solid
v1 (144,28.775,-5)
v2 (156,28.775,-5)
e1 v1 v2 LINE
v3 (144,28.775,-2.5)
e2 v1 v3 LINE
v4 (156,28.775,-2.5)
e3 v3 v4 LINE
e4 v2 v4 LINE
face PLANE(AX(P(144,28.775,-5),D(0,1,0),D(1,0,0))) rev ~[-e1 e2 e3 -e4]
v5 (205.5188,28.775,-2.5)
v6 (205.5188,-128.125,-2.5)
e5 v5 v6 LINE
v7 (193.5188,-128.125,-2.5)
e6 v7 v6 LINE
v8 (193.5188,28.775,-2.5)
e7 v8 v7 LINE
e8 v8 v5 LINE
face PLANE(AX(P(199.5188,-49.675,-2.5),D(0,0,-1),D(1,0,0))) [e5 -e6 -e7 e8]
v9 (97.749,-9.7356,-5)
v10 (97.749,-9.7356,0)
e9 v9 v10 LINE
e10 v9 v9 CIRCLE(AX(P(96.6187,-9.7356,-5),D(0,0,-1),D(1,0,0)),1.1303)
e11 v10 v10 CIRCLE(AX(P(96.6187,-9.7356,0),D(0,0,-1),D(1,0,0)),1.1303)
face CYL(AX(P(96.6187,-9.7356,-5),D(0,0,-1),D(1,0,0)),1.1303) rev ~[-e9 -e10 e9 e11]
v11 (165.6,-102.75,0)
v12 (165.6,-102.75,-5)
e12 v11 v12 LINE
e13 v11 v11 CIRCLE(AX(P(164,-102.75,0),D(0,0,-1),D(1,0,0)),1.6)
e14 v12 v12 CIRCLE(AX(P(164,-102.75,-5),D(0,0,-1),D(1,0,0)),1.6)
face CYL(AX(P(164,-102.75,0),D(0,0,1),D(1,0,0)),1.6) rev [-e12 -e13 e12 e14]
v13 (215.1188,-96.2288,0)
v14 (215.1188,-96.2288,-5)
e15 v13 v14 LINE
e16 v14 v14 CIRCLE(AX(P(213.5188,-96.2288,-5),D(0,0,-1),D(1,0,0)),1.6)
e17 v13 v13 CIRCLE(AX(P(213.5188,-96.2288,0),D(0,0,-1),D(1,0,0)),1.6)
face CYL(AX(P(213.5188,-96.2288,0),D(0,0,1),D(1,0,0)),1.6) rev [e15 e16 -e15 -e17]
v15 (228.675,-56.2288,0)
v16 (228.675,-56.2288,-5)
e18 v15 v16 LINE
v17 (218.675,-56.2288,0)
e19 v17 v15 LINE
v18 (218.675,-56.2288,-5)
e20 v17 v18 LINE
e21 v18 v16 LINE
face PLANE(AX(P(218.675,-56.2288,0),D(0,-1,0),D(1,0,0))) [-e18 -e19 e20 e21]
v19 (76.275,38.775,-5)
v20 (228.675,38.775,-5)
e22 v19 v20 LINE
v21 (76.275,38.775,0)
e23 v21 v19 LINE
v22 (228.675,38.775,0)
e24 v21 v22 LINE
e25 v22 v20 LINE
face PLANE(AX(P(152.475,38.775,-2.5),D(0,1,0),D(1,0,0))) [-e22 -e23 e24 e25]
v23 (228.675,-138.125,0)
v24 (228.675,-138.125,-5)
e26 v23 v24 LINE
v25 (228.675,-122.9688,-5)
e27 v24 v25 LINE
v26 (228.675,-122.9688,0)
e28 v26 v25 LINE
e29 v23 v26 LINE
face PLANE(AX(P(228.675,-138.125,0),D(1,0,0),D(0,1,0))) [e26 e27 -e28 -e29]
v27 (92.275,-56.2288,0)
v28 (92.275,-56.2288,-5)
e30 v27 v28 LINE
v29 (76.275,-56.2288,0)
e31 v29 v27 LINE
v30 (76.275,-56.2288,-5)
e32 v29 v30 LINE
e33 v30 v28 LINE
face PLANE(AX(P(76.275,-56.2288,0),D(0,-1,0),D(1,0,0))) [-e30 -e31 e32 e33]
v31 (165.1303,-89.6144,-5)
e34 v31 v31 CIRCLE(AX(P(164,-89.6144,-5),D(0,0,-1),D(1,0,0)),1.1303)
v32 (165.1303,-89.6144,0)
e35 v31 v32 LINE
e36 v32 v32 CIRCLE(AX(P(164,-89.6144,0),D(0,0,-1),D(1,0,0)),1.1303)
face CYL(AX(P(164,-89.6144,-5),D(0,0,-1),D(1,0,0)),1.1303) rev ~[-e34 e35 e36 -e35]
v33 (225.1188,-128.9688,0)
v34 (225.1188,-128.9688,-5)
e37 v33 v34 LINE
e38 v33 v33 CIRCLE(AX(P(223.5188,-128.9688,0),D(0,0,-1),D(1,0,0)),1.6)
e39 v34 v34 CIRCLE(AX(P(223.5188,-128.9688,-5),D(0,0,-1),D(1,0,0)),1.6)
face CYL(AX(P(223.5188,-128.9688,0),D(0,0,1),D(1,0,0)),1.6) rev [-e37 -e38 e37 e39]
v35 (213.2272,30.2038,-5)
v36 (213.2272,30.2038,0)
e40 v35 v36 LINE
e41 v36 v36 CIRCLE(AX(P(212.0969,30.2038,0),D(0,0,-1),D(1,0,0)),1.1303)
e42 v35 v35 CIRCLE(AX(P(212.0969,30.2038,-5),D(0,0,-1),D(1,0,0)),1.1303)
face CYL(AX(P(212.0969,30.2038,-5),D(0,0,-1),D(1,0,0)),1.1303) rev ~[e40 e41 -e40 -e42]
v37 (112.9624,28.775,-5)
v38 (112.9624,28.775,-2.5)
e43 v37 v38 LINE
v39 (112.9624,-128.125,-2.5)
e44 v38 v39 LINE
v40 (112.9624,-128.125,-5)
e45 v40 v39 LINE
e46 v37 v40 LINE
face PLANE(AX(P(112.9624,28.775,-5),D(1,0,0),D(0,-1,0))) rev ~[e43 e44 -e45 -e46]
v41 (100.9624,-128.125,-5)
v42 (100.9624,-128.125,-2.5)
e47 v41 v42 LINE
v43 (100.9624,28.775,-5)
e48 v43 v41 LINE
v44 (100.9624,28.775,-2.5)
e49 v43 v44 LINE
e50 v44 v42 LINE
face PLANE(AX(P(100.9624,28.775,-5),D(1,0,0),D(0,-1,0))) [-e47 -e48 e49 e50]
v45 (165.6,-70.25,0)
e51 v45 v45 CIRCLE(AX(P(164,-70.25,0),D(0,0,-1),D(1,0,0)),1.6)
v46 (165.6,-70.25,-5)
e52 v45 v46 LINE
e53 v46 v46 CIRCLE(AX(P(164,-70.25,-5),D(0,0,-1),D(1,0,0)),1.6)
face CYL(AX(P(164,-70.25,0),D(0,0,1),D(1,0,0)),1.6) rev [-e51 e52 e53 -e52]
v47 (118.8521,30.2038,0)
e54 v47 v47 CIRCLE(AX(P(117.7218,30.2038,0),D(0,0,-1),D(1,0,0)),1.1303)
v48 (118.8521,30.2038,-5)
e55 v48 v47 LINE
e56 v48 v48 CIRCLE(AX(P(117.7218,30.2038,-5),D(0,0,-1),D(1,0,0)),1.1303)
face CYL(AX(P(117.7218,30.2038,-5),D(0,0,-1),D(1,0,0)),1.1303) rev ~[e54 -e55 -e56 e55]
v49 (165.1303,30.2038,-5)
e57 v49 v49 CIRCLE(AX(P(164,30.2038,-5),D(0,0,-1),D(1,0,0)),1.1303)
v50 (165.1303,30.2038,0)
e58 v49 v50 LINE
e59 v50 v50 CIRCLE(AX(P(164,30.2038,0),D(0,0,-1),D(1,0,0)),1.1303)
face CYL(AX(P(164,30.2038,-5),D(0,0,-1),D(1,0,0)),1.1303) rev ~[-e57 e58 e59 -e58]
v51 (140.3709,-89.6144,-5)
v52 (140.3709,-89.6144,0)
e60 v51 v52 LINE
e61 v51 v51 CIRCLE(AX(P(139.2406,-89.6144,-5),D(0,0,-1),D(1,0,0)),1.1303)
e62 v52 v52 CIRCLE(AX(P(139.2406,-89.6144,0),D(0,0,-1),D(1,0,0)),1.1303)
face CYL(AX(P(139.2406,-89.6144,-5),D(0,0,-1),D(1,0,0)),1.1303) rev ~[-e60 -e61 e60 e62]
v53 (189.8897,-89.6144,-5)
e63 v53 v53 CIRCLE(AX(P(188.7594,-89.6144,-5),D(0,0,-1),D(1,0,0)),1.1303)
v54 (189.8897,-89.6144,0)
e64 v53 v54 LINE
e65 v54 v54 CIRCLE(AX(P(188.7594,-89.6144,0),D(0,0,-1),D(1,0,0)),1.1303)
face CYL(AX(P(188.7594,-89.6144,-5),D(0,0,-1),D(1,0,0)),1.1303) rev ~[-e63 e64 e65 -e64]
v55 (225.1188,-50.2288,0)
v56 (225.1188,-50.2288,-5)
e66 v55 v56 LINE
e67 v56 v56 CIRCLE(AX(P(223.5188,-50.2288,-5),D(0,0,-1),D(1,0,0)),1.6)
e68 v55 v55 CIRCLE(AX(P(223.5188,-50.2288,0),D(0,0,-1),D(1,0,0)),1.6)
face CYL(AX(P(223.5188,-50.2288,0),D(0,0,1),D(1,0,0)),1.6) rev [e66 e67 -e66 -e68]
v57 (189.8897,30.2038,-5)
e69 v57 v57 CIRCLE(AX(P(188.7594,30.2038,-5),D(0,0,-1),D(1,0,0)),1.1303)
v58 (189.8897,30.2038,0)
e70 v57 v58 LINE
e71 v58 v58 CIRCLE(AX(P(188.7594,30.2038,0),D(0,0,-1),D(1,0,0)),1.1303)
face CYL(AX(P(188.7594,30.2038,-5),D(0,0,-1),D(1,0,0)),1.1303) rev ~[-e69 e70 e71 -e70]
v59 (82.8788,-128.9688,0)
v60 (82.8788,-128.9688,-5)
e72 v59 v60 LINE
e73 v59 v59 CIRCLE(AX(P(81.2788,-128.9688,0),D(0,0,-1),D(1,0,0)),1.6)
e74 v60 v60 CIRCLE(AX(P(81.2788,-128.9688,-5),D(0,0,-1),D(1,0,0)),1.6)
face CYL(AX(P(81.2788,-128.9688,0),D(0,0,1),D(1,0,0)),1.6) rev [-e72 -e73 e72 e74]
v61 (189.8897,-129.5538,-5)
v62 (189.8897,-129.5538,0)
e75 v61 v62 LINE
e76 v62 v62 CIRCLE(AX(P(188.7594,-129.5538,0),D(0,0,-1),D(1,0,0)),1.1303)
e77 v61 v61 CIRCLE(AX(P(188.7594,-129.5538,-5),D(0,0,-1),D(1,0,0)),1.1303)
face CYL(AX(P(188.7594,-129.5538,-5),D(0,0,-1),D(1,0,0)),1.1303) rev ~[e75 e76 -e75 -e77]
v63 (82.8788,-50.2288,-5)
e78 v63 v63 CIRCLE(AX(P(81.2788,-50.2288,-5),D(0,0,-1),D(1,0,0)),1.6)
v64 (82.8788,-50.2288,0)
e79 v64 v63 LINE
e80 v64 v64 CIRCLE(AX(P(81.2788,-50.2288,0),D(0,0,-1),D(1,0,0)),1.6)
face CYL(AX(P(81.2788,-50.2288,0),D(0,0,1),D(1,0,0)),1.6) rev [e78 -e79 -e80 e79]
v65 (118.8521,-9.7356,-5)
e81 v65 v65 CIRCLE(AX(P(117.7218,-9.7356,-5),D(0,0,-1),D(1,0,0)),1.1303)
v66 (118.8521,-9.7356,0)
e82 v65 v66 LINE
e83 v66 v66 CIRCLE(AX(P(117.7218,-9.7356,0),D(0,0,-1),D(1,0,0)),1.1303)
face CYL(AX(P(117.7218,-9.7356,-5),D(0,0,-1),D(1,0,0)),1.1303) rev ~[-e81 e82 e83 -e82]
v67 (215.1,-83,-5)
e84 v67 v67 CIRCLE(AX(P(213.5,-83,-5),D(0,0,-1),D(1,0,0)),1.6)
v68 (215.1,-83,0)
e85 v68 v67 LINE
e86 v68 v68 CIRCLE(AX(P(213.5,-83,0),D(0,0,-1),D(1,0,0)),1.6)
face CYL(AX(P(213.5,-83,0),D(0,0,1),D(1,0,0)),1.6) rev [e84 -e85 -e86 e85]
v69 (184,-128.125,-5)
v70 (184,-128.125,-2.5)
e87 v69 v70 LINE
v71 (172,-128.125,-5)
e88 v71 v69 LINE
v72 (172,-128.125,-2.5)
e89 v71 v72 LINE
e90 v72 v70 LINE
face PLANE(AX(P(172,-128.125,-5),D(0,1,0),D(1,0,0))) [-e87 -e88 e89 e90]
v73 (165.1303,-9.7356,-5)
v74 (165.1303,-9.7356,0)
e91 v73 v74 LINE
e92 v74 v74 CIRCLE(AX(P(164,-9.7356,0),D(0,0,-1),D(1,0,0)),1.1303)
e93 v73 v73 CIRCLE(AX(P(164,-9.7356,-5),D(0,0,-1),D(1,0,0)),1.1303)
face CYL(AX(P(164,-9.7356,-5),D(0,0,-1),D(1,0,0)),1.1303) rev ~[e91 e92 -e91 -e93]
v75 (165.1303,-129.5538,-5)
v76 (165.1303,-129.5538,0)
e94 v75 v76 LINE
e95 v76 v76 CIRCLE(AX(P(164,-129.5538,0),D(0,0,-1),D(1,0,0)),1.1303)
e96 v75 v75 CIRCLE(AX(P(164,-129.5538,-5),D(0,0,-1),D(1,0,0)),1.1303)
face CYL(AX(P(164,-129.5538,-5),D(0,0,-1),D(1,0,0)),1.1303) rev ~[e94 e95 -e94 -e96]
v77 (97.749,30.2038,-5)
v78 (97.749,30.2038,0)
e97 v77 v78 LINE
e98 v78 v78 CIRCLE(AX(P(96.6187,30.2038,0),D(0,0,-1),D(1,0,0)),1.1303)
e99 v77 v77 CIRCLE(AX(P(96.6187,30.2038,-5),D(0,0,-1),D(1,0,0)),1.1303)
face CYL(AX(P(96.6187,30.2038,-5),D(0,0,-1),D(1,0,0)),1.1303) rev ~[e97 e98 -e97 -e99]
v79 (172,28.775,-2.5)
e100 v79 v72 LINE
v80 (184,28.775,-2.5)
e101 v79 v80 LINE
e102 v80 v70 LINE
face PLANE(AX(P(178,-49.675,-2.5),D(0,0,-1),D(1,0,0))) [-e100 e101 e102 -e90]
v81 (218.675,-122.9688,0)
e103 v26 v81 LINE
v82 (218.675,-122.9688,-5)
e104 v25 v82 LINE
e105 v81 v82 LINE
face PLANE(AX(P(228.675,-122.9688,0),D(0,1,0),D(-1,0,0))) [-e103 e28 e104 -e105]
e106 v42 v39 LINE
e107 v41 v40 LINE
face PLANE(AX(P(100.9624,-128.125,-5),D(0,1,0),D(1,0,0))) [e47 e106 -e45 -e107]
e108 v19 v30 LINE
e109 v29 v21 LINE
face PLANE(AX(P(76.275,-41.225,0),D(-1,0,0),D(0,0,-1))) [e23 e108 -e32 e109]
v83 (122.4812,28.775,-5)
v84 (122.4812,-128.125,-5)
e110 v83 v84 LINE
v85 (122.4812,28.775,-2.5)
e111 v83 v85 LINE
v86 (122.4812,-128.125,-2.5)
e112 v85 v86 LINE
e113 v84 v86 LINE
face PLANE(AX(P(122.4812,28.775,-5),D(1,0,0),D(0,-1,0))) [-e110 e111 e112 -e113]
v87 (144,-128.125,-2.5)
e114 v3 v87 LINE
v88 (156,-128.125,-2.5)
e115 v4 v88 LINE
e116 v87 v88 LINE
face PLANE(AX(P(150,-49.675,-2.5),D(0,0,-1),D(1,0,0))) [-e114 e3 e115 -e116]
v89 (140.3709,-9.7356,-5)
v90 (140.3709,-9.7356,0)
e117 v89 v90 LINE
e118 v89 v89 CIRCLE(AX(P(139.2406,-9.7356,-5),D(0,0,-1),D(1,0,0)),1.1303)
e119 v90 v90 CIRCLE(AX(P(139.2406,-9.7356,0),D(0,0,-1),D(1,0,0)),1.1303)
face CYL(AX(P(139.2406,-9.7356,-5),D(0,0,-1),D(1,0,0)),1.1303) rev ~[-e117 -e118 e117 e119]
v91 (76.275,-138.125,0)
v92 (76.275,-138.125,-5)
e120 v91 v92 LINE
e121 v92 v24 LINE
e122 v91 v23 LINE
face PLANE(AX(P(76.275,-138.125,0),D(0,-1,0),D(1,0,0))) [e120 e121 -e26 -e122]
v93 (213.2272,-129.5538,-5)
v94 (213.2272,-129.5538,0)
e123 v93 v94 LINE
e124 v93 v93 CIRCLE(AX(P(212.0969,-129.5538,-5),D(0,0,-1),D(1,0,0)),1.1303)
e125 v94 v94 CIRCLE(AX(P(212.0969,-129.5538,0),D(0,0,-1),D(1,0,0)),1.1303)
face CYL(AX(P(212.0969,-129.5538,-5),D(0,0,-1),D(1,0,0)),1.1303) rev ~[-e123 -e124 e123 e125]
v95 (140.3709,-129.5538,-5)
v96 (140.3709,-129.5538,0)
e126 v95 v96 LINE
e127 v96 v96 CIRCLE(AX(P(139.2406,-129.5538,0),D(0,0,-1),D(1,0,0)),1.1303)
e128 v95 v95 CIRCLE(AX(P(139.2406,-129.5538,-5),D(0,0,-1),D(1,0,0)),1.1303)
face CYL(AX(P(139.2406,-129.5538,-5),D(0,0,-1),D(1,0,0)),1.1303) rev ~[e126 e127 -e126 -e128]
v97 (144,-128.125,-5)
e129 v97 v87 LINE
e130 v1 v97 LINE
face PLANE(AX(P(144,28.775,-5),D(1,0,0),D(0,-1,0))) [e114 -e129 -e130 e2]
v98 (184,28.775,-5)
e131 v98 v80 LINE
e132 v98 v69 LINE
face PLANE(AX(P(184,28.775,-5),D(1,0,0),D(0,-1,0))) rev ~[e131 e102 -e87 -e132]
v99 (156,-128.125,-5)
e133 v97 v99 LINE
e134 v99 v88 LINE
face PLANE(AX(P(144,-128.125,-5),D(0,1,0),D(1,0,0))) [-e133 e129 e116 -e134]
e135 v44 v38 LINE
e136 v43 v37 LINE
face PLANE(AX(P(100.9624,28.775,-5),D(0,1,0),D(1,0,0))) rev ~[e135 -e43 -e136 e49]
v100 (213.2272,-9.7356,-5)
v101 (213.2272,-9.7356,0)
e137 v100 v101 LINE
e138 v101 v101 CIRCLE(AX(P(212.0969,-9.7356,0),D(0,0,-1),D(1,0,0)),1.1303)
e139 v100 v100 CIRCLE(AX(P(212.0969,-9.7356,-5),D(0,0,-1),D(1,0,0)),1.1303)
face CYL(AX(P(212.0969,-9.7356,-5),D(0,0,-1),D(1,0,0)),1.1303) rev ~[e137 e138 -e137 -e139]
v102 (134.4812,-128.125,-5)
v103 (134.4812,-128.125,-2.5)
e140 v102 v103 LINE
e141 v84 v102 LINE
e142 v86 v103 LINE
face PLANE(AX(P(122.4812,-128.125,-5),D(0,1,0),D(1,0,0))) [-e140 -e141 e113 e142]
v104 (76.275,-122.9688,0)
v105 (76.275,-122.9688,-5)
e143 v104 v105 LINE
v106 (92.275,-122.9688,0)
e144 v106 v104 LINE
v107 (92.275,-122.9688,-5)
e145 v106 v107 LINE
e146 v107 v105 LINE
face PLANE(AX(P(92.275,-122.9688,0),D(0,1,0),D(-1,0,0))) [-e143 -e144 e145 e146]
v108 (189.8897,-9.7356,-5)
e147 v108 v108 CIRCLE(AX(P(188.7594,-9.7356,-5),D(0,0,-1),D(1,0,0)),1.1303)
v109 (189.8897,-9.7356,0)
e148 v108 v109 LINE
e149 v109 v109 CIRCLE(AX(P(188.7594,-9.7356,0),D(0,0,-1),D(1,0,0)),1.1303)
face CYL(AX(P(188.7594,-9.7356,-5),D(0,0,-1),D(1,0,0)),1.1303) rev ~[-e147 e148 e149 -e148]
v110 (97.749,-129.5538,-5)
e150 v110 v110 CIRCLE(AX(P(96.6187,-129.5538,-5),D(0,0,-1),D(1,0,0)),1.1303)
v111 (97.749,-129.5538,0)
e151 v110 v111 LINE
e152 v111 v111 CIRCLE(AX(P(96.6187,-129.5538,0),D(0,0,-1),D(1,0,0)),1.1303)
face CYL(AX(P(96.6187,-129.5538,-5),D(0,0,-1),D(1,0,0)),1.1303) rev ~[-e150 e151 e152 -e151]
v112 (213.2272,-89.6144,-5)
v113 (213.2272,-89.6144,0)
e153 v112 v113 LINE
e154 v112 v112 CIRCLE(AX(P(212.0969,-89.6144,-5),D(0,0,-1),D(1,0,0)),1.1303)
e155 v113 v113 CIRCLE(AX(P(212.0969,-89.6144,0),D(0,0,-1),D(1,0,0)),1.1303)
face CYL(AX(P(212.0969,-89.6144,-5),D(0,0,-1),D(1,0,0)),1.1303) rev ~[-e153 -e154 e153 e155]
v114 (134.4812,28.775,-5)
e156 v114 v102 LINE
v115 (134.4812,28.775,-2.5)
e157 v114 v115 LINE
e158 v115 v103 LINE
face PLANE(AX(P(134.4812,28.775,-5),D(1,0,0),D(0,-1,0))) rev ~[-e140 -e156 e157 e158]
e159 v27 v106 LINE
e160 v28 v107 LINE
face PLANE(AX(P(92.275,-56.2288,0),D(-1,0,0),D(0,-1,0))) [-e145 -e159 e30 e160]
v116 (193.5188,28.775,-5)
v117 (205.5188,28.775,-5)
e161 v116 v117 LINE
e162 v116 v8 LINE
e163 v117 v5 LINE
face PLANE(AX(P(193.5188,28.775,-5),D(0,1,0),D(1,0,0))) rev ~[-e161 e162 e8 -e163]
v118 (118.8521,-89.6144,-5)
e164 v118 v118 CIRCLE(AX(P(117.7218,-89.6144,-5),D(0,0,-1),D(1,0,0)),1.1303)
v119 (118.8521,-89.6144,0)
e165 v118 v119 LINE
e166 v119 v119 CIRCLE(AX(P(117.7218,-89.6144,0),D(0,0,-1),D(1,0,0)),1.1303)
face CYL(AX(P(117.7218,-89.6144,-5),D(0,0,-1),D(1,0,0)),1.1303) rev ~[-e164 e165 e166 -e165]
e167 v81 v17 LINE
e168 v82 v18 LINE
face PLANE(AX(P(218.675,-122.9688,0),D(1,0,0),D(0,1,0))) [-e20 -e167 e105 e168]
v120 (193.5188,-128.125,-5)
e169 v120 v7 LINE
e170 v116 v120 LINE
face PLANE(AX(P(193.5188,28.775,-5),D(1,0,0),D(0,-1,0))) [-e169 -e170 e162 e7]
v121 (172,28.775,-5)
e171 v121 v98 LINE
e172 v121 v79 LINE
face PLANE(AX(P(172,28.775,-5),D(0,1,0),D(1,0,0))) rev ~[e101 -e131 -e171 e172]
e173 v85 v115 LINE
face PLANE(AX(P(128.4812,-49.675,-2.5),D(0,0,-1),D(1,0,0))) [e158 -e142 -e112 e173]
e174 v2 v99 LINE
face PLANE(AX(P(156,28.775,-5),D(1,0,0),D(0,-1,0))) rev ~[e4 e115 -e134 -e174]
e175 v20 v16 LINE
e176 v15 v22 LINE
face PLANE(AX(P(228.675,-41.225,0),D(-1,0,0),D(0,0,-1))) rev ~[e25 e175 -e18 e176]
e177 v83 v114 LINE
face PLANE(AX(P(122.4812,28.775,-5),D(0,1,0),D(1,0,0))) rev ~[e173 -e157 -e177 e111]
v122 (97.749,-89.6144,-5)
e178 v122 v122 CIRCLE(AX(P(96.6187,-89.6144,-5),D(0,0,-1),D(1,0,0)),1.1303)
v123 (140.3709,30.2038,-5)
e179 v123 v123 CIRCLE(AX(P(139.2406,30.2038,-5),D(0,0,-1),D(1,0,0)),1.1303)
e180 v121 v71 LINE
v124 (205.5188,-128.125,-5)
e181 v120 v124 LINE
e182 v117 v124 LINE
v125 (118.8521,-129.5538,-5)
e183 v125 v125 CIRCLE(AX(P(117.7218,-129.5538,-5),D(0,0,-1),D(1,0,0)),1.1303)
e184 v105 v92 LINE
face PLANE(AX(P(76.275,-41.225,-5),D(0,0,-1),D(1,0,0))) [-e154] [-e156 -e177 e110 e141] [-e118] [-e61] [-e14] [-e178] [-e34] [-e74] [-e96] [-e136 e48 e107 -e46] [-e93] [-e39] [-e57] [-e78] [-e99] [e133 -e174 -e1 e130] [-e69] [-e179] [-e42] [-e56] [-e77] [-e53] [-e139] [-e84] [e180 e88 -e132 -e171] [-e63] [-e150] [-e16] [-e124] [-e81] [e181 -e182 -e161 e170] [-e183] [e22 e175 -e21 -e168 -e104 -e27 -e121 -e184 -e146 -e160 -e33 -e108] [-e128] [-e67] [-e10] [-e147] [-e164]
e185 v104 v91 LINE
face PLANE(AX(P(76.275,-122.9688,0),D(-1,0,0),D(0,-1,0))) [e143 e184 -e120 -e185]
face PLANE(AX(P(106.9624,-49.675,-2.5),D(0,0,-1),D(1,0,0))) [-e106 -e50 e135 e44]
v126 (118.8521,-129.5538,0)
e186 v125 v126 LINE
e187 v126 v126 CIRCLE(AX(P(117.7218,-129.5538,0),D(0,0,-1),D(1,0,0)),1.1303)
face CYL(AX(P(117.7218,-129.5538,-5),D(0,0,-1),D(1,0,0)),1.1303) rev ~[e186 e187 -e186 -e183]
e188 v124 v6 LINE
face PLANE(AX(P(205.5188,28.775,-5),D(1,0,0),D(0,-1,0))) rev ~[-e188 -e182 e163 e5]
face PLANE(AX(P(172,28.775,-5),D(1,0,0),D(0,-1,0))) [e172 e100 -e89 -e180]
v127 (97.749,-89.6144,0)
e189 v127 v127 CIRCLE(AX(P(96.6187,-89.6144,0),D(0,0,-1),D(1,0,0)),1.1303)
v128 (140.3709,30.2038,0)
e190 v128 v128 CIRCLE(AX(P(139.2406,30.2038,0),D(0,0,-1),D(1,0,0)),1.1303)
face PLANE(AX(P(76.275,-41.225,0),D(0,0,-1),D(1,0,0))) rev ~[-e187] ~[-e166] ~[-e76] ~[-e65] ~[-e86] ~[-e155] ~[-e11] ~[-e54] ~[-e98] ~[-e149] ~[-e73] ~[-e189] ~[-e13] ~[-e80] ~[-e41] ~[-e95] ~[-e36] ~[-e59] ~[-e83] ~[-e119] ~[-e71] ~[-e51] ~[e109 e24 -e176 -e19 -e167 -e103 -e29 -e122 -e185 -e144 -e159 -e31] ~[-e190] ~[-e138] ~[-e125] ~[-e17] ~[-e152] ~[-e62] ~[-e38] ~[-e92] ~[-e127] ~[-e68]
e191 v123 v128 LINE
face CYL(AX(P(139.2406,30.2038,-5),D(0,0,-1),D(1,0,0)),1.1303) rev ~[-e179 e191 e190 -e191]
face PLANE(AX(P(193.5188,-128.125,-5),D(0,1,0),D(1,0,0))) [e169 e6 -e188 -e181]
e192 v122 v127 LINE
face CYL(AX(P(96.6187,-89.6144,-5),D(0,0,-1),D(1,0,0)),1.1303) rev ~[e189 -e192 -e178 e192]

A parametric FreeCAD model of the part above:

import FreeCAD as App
import Part
import Sketcher
Q = App.Units.Quantity

doc = App.newDocument("Part")
body = doc.addObject("PartDesign::Body", "Body")

# Sketch on XY plane
sketch1 = doc.addObject("Sketcher::SketchObject", "Sketch")
body.addObject(sketch1)
sketch1.AttachmentSupport = (doc.XY_Plane, [""])
sketch1.MapMode = "FlatFace"
sketch1.addGeometry(Part.LineSegment(App.Vector(228.675, -138.125, 0), App.Vector(76.275, -138.125, 0)), False)
sketch1.addGeometry(Part.LineSegment(App.Vector(76.275, -138.125, 0), App.Vector(76.275, -122.9688, 0)), False)
sketch1.addGeometry(Part.LineSegment(App.Vector(76.275, -122.9688, 0), App.Vector(92.275, -122.9688, 0)), False)
sketch1.addGeometry(Part.LineSegment(App.Vector(92.275, -122.9688, 0), App.Vector(92.275, -56.2288, 0)), False)
sketch1.addGeometry(Part.LineSegment(App.Vector(92.275, -56.2288, 0), App.Vector(76.275, -56.2288, 0)), False)
sketch1.addGeometry(Part.LineSegment(App.Vector(76.275, -56.2288, 0), App.Vector(76.275, -41.225, 0)), False)
sketch1.addGeometry(Part.LineSegment(App.Vector(76.275, -41.225, 0), App.Vector(228.675, -41.225, 0)), False)
sketch1.addGeometry(Part.LineSegment(App.Vector(228.675, -41.225, 0), App.Vector(228.675, -56.2288, 0)), False)
sketch1.addGeometry(Part.LineSegment(App.Vector(228.675, -56.2288, 0), App.Vector(218.675, -56.2288, 0)), False)
sketch1.addGeometry(Part.LineSegment(App.Vector(218.675, -56.2288, 0), App.Vector(218.675, -122.9688, 0)), False)
sketch1.addGeometry(Part.LineSegment(App.Vector(218.675, -122.9688, 0), App.Vector(228.675, -122.9688, 0)), False)
sketch1.addGeometry(Part.LineSegment(App.Vector(228.675, -122.9688, 0), App.Vector(228.675, -138.125, 0)), False)
sketch1.addGeometry(Part.Circle(App.Vector(223.5188, -50.2288, 0), App.Vector(0, 0, 1), 1.6), False)
sketch1.addGeometry(Part.Circle(App.Vector(213.5, -83, 0), App.Vector(0, 0, 1), 1.6), False)
sketch1.addGeometry(Part.Circle(App.Vector(164, -70.25, 0), App.Vector(0, 0, 1), 1.6), False)
sketch1.addGeometry(Part.Circle(App.Vector(81.2788, -50.2288, 0), App.Vector(0, 0, 1), 1.6), False)
sketch1.addGeometry(Part.Circle(App.Vector(213.5188, -96.2288, 0), App.Vector(0, 0, 1), 1.6), False)
sketch1.addGeometry(Part.Circle(App.Vector(164, -102.75, 0), App.Vector(0, 0, 1), 1.6), False)
sketch1.addGeometry(Part.Circle(App.Vector(223.5188, -128.9688, 0), App.Vector(0, 0, 1), 1.6), False)
sketch1.addGeometry(Part.Circle(App.Vector(81.2788, -128.9688, 0), App.Vector(0, 0, 1), 1.6), False)
sketch1.addConstraint(Sketcher.Constraint("Coincident", 0, 2, 1, 1))
sketch1.addConstraint(Sketcher.Constraint("Coincident", 1, 2, 2, 1))
sketch1.addConstraint(Sketcher.Constraint("Coincident", 2, 2, 3, 1))
sketch1.addConstraint(Sketcher.Constraint("Coincident", 3, 2, 4, 1))
sketch1.addConstraint(Sketcher.Constraint("Coincident", 4, 2, 5, 1))
sketch1.addConstraint(Sketcher.Constraint("Coincident", 5, 2, 6, 1))
sketch1.addConstraint(Sketcher.Constraint("Coincident", 6, 2, 7, 1))
sketch1.addConstraint(Sketcher.Constraint("Coincident", 7, 2, 8, 1))
sketch1.addConstraint(Sketcher.Constraint("Coincident", 8, 2, 9, 1))
sketch1.addConstraint(Sketcher.Constraint("Coincident", 9, 2, 10, 1))
sketch1.addConstraint(Sketcher.Constraint("Coincident", 10, 2, 11, 1))
sketch1.addConstraint(Sketcher.Constraint("Coincident", 11, 2, 0, 1))
sketch1.addConstraint(Sketcher.Constraint("Horizontal", 0))
sketch1.addConstraint(Sketcher.Constraint("Vertical", 1))
sketch1.addConstraint(Sketcher.Constraint("Horizontal", 2))
sketch1.addConstraint(Sketcher.Constraint("Vertical", 3))
sketch1.addConstraint(Sketcher.Constraint("Horizontal", 4))
sketch1.addConstraint(Sketcher.Constraint("Vertical", 5))
sketch1.addConstraint(Sketcher.Constraint("Horizontal", 6))
sketch1.addConstraint(Sketcher.Constraint("Vertical", 7))
sketch1.addConstraint(Sketcher.Constraint("Horizontal", 8))
sketch1.addConstraint(Sketcher.Constraint("Vertical", 9))
sketch1.addConstraint(Sketcher.Constraint("Horizontal", 10))
sketch1.addConstraint(Sketcher.Constraint("Vertical", 11))
sketch1.addConstraint(Sketcher.Constraint("Equal", 12, 13))
sketch1.addConstraint(Sketcher.Constraint("Equal", 13, 14))
sketch1.addConstraint(Sketcher.Constraint("Equal", 14, 15))
sketch1.addConstraint(Sketcher.Constraint("Equal", 15, 16))
sketch1.addConstraint(Sketcher.Constraint("Equal", 16, 17))
sketch1.addConstraint(Sketcher.Constraint("Equal", 17, 18))
sketch1.addConstraint(Sketcher.Constraint("Equal", 18, 19))
sketch1.addConstraint(Sketcher.Constraint("Horizontal", 12, 3, 15, 3))
sketch1.addConstraint(Sketcher.Constraint("Horizontal", 18, 3, 19, 3))
sketch1.addConstraint(Sketcher.Constraint("Horizontal", 4, 2, 7, 2))
sketch1.addConstraint(Sketcher.Constraint("Horizontal", 2, 2, 9, 2))
sketch1.addConstraint(Sketcher.Constraint("Vertical", 14, 3, 17, 3))
sketch1.addConstraint(Sketcher.Constraint("Vertical", 12, 3, 18, 3))
sketch1.addConstraint(Sketcher.Constraint("Vertical", 15, 3, 19, 3))
sketch1.addConstraint(Sketcher.Constraint("Vertical", 1, 2, 4, 2))
sketch1.addConstraint(Sketcher.Constraint("Vertical", 7, 2, 10, 2))
sketch1.addConstraint(Sketcher.Constraint("Diameter", 12, Q("3.2 mm")))
sketch1.addConstraint(Sketcher.Constraint("DistanceX", 2, 1, 2, 2, Q("16 mm")))
sketch1.addConstraint(Sketcher.Constraint("DistanceX", 8, 2, 8, 1, Q("10 mm")))
sketch1.addConstraint(Sketcher.Constraint("DistanceX", 0, 2, 0, 1, Q("152.4 mm")))
sketch1.addConstraint(Sketcher.Constraint("DistanceY", 13, 3, -1, 1, Q("83 mm")))
sketch1.addConstraint(Sketcher.Constraint("DistanceX", -1, 1, 14, 3, Q("164 mm")))
sketch1.addConstraint(Sketcher.Constraint("DistanceX", 16, 3, 12, 3, Q("10 mm")))
sketch1.addConstraint(Sketcher.Constraint("DistanceY", 16, 3, 12, 3, Q("46 mm")))
sketch1.addConstraint(Sketcher.Constraint("DistanceY", 19, 3, 1, 2, Q("6 mm")))
sketch1.addConstraint(Sketcher.Constraint("DistanceY", 3, 2, 15, 3, Q("6 mm")))
sketch1.addConstraint(Sketcher.Constraint("DistanceY", 3, 1, 3, 2, Q("66.74 mm")))
sketch1.addConstraint(Sketcher.Constraint("DistanceX", -1, 1, 13, 3, Q("213.5 mm")))
sketch1.addConstraint(Sketcher.Constraint("DistanceY", 17, 3, 14, 3, Q("32.5 mm")))
sketch1.addConstraint(Sketcher.Constraint("DistanceY", 14, 3, -1, 1, Q("70.25 mm")))
sketch1.addConstraint(Sketcher.Constraint("DistanceX", 15, 3, 12, 3, Q("142.24 mm")))
sketch1.addConstraint(Sketcher.Constraint("DistanceY", 1, 1, 1, 2, Q("15.1562 mm")))
sketch1.addConstraint(Sketcher.Constraint("DistanceY", 5, 1, 5, 2, Q("15.0038 mm")))
sketch1.addConstraint(Sketcher.Constraint("DistanceX", -1, 1, 0, 2, Q("76.275 mm")))
sketch1.addConstraint(Sketcher.Constraint("DistanceY", 0, 2, -1, 1, Q("138.125 mm")))
sketch1.addConstraint(Sketcher.Constraint("DistanceX", -1, 1, 12, 3, Q("223.5188 mm")))
pad1 = doc.addObject("PartDesign::Pad", "Pad")
body.addObject(pad1)
pad1.Profile = sketch1
pad1.Length = 5
pad1.Reversed = True

# Sketch on XZ plane
sketch2 = doc.addObject("Sketcher::SketchObject", "Sketch001")
body.addObject(sketch2)
sketch2.AttachmentSupport = (doc.XZ_Plane, [""])
sketch2.MapMode = "FlatFace"
sketch2.AttachmentOffset = App.Placement(App.Vector(0, 0, 41.225), App.Rotation())
sketch2.addGeometry(Part.LineSegment(App.Vector(76.275, -5, 0), App.Vector(76.275, 0, 0)), False)
sketch2.addGeometry(Part.LineSegment(App.Vector(76.275, 0, 0), App.Vector(228.675, 0, 0)), False)
sketch2.addGeometry(Part.LineSegment(App.Vector(228.675, 0, 0), App.Vector(228.675, -5, 0)), False)
sketch2.addGeometry(Part.LineSegment(App.Vector(228.675, -5, 0), App.Vector(76.275, -5, 0)), False)
sketch2.addConstraint(Sketcher.Constraint("Coincident", 0, 2, 1, 1))
sketch2.addConstraint(Sketcher.Constraint("Coincident", 1, 2, 2, 1))
sketch2.addConstraint(Sketcher.Constraint("Coincident", 2, 2, 3, 1))
sketch2.addConstraint(Sketcher.Constraint("Coincident", 3, 2, 0, 1))
sketch2.addConstraint(Sketcher.Constraint("Vertical", 0))
sketch2.addConstraint(Sketcher.Constraint("Horizontal", 1))
sketch2.addConstraint(Sketcher.Constraint("Vertical", 2))
sketch2.addConstraint(Sketcher.Constraint("Horizontal", 3))
sketch2.addConstraint(Sketcher.Constraint("PointOnObject", 0, 2, -1))
sketch2.addConstraint(Sketcher.Constraint("DistanceY", 0, 1, 0, 2, Q("5 mm")))
sketch2.addConstraint(Sketcher.Constraint("DistanceX", 1, 1, 1, 2, Q("152.4 mm")))
sketch2.addConstraint(Sketcher.Constraint("DistanceX", -1, 1, 0, 2, Q("76.275 mm")))
pad2 = doc.addObject("PartDesign::Pad", "Pad001")
body.addObject(pad2)
pad2.Profile = sketch2
pad2.Length = 80
pad2.Reversed = True

# Sketch on XY plane
sketch3 = doc.addObject("Sketcher::SketchObject", "Sketch002")
body.addObject(sketch3)
sketch3.AttachmentSupport = (doc.XY_Plane, [""])
sketch3.MapMode = "FlatFace"
sketch3.AttachmentOffset = App.Placement(App.Vector(0, 0, -5), App.Rotation())
sketch3.addGeometry(Part.LineSegment(App.Vector(193.5188, -128.125, 0), App.Vector(193.5188, 28.775, 0)), False)
sketch3.addGeometry(Part.LineSegment(App.Vector(193.5188, 28.775, 0), App.Vector(205.5188, 28.775, 0)), False)
sketch3.addGeometry(Part.LineSegment(App.Vector(205.5188, 28.775, 0), App.Vector(205.5188, -128.125, 0)), False)
sketch3.addGeometry(Part.LineSegment(App.Vector(205.5188, -128.125, 0), App.Vector(193.5188, -128.125, 0)), False)
sketch3.addConstraint(Sketcher.Constraint("Coincident", 0, 2, 1, 1))
sketch3.addConstraint(Sketcher.Constraint("Coincident", 1, 2, 2, 1))
sketch3.addConstraint(Sketcher.Constraint("Coincident", 2, 2, 3, 1))
sketch3.addConstraint(Sketcher.Constraint("Coincident", 3, 2, 0, 1))
sketch3.addConstraint(Sketcher.Constraint("Vertical", 0))
sketch3.addConstraint(Sketcher.Constraint("Horizontal", 1))
sketch3.addConstraint(Sketcher.Constraint("Vertical", 2))
sketch3.addConstraint(Sketcher.Constraint("Horizontal", 3))
sketch3.addConstraint(Sketcher.Constraint("DistanceX", 1, 1, 1, 2, Q("12 mm")))
sketch3.addConstraint(Sketcher.Constraint("DistanceY", 0, 1, 0, 2, Q("156.9 mm")))
sketch3.addConstraint(Sketcher.Constraint("DistanceY", -1, 1, 0, 2, Q("28.775 mm")))
sketch3.addConstraint(Sketcher.Constraint("DistanceX", -1, 1, 0, 2, Q("193.5188 mm")))
pocket1 = doc.addObject("PartDesign::Pocket", "Pocket")
body.addObject(pocket1)
pocket1.Profile = sketch3
pocket1.Length = 2.5
pocket1.Reversed = True

# Sketch on XY plane
sketch4 = doc.addObject("Sketcher::SketchObject", "Sketch003")
body.addObject(sketch4)
sketch4.AttachmentSupport = (doc.XY_Plane, [""])
sketch4.MapMode = "FlatFace"
sketch4.AttachmentOffset = App.Placement(App.Vector(0, 0, -5), App.Rotation())
sketch4.addGeometry(Part.LineSegment(App.Vector(172, -128.125, 0), App.Vector(172, 28.775, 0)), False)
sketch4.addGeometry(Part.LineSegment(App.Vector(172, 28.775, 0), App.Vector(184, 28.775, 0)), False)
sketch4.addGeometry(Part.LineSegment(App.Vector(184, 28.775, 0), App.Vector(184, -128.125, 0)), False)
sketch4.addGeometry(Part.LineSegment(App.Vector(184, -128.125, 0), App.Vector(172, -128.125, 0)), False)
sketch4.addConstraint(Sketcher.Constraint("Coincident", 0, 2, 1, 1))
sketch4.addConstraint(Sketcher.Constraint("Coincident", 1, 2, 2, 1))
sketch4.addConstraint(Sketcher.Constraint("Coincident", 2, 2, 3, 1))
sketch4.addConstraint(Sketcher.Constraint("Coincident", 3, 2, 0, 1))
sketch4.addConstraint(Sketcher.Constraint("Vertical", 0))
sketch4.addConstraint(Sketcher.Constraint("Horizontal", 1))
sketch4.addConstraint(Sketcher.Constraint("Vertical", 2))
sketch4.addConstraint(Sketcher.Constraint("Horizontal", 3))
sketch4.addConstraint(Sketcher.Constraint("DistanceX", 1, 1, 1, 2, Q("12 mm")))
sketch4.addConstraint(Sketcher.Constraint("DistanceY", 0, 1, 0, 2, Q("156.9 mm")))
sketch4.addConstraint(Sketcher.Constraint("DistanceX", -1, 1, 0, 2, Q("172 mm")))
sketch4.addConstraint(Sketcher.Constraint("DistanceY", -1, 1, 0, 2, Q("28.775 mm")))
pocket2 = doc.addObject("PartDesign::Pocket", "Pocket001")
body.addObject(pocket2)
pocket2.Profile = sketch4
pocket2.Length = 2.5
pocket2.Reversed = True

# Sketch on XY plane
sketch5 = doc.addObject("Sketcher::SketchObject", "Sketch004")
body.addObject(sketch5)
sketch5.AttachmentSupport = (doc.XY_Plane, [""])
sketch5.MapMode = "FlatFace"
sketch5.AttachmentOffset = App.Placement(App.Vector(0, 0, -5), App.Rotation())
sketch5.addGeometry(Part.LineSegment(App.Vector(144, -128.125, 0), App.Vector(144, 28.775, 0)), False)
sketch5.addGeometry(Part.LineSegment(App.Vector(144, 28.775, 0), App.Vector(156, 28.775, 0)), False)
sketch5.addGeometry(Part.LineSegment(App.Vector(156, 28.775, 0), App.Vector(156, -128.125, 0)), False)
sketch5.addGeometry(Part.LineSegment(App.Vector(156, -128.125, 0), App.Vector(144, -128.125, 0)), False)
sketch5.addConstraint(Sketcher.Constraint("Coincident", 0, 2, 1, 1))
sketch5.addConstraint(Sketcher.Constraint("Coincident", 1, 2, 2, 1))
sketch5.addConstraint(Sketcher.Constraint("Coincident", 2, 2, 3, 1))
sketch5.addConstraint(Sketcher.Constraint("Coincident", 3, 2, 0, 1))
sketch5.addConstraint(Sketcher.Constraint("Vertical", 0))
sketch5.addConstraint(Sketcher.Constraint("Horizontal", 1))
sketch5.addConstraint(Sketcher.Constraint("Vertical", 2))
sketch5.addConstraint(Sketcher.Constraint("Horizontal", 3))
sketch5.addConstraint(Sketcher.Constraint("DistanceX", 1, 1, 1, 2, Q("12 mm")))
sketch5.addConstraint(Sketcher.Constraint("DistanceY", 0, 1, 0, 2, Q("156.9 mm")))
sketch5.addConstraint(Sketcher.Constraint("DistanceX", -1, 1, 0, 2, Q("144 mm")))
sketch5.addConstraint(Sketcher.Constraint("DistanceY", -1, 1, 0, 2, Q("28.775 mm")))
pocket3 = doc.addObject("PartDesign::Pocket", "Pocket002")
body.addObject(pocket3)
pocket3.Profile = sketch5
pocket3.Length = 2.5
pocket3.Reversed = True

# Sketch on XY plane
sketch6 = doc.addObject("Sketcher::SketchObject", "Sketch005")
body.addObject(sketch6)
sketch6.AttachmentSupport = (doc.XY_Plane, [""])
sketch6.MapMode = "FlatFace"
sketch6.AttachmentOffset = App.Placement(App.Vector(0, 0, -5), App.Rotation())
sketch6.addGeometry(Part.LineSegment(App.Vector(122.4812, -128.125, 0), App.Vector(122.4812, 28.775, 0)), False)
sketch6.addGeometry(Part.LineSegment(App.Vector(122.4812, 28.775, 0), App.Vector(134.4812, 28.775, 0)), False)
sketch6.addGeometry(Part.LineSegment(App.Vector(134.4812, 28.775, 0), App.Vector(134.4812, -128.125, 0)), False)
sketch6.addGeometry(Part.LineSegment(App.Vector(134.4812, -128.125, 0), App.Vector(122.4812, -128.125, 0)), False)
sketch6.addConstraint(Sketcher.Constraint("Coincident", 0, 2, 1, 1))
sketch6.addConstraint(Sketcher.Constraint("Coincident", 1, 2, 2, 1))
sketch6.addConstraint(Sketcher.Constraint("Coincident", 2, 2, 3, 1))
sketch6.addConstraint(Sketcher.Constraint("Coincident", 3, 2, 0, 1))
sketch6.addConstraint(Sketcher.Constraint("Vertical", 0))
sketch6.addConstraint(Sketcher.Constraint("Horizontal", 1))
sketch6.addConstraint(Sketcher.Constraint("Vertical", 2))
sketch6.addConstraint(Sketcher.Constraint("Horizontal", 3))
sketch6.addConstraint(Sketcher.Constraint("DistanceX", 1, 1, 1, 2, Q("12 mm")))
sketch6.addConstraint(Sketcher.Constraint("DistanceY", 0, 1, 0, 2, Q("156.9 mm")))
sketch6.addConstraint(Sketcher.Constraint("DistanceY", -1, 1, 0, 2, Q("28.775 mm")))
sketch6.addConstraint(Sketcher.Constraint("DistanceX", -1, 1, 0, 2, Q("122.4812 mm")))
pocket4 = doc.addObject("PartDesign::Pocket", "Pocket003")
body.addObject(pocket4)
pocket4.Profile = sketch6
pocket4.Length = 2.5
pocket4.Reversed = True

# Sketch on XY plane
sketch7 = doc.addObject("Sketcher::SketchObject", "Sketch006")
body.addObject(sketch7)
sketch7.AttachmentSupport = (doc.XY_Plane, [""])
sketch7.MapMode = "FlatFace"
sketch7.AttachmentOffset = App.Placement(App.Vector(0, 0, -5), App.Rotation())
sketch7.addGeometry(Part.LineSegment(App.Vector(100.9624, -128.125, 0), App.Vector(100.9624, 28.775, 0)), False)
sketch7.addGeometry(Part.LineSegment(App.Vector(100.9624, 28.775, 0), App.Vector(112.9624, 28.775, 0)), False)
sketch7.addGeometry(Part.LineSegment(App.Vector(112.9624, 28.775, 0), App.Vector(112.9624, -128.125, 0)), False)
sketch7.addGeometry(Part.LineSegment(App.Vector(112.9624, -128.125, 0), App.Vector(100.9624, -128.125, 0)), False)
sketch7.addConstraint(Sketcher.Constraint("Coincident", 0, 2, 1, 1))
sketch7.addConstraint(Sketcher.Constraint("Coincident", 1, 2, 2, 1))
sketch7.addConstraint(Sketcher.Constraint("Coincident", 2, 2, 3, 1))
sketch7.addConstraint(Sketcher.Constraint("Coincident", 3, 2, 0, 1))
sketch7.addConstraint(Sketcher.Constraint("Vertical", 0))
sketch7.addConstraint(Sketcher.Constraint("Horizontal", 1))
sketch7.addConstraint(Sketcher.Constraint("Vertical", 2))
sketch7.addConstraint(Sketcher.Constraint("Horizontal", 3))
sketch7.addConstraint(Sketcher.Constraint("DistanceX", 1, 1, 1, 2, Q("12 mm")))
sketch7.addConstraint(Sketcher.Constraint("DistanceY", 0, 1, 0, 2, Q("156.9 mm")))
sketch7.addConstraint(Sketcher.Constraint("DistanceY", -1, 1, 0, 2, Q("28.775 mm")))
sketch7.addConstraint(Sketcher.Constraint("DistanceX", -1, 1, 0, 2, Q("100.9624 mm")))
pocket5 = doc.addObject("PartDesign::Pocket", "Pocket004")
body.addObject(pocket5)
pocket5.Profile = sketch7
pocket5.Length = 2.5
pocket5.Reversed = True

# Sketch on XY plane
sketch8 = doc.addObject("Sketcher::SketchObject", "Sketch007")
body.addObject(sketch8)
sketch8.AttachmentSupport = (doc.XY_Plane, [""])
sketch8.MapMode = "FlatFace"
sketch8.AttachmentOffset = App.Placement(App.Vector(0, 0, -5), App.Rotation())
sketch8.addGeometry(Part.Circle(App.Vector(212.0969, -129.5538, 0), App.Vector(0, 0, 1), 1.1303), False)
sketch8.addGeometry(Part.Circle(App.Vector(212.0969, -89.6144, 0), App.Vector(0, 0, 1), 1.1303), False)
sketch8.addGeometry(Part.Circle(App.Vector(212.0969, -9.7356, 0), App.Vector(0, 0, 1), 1.1303), False)
sketch8.addGeometry(Part.Circle(App.Vector(212.0969, 30.2038, 0), App.Vector(0, 0, 1), 1.1303), False)
sketch8.addGeometry(Part.Circle(App.Vector(164, -89.6144, 0), App.Vector(0, 0, 1), 1.1303), False)
sketch8.addGeometry(Part.Circle(App.Vector(188.7594, -89.6144, 0), App.Vector(0, 0, 1), 1.1303), False)
sketch8.addGeometry(Part.Circle(App.Vector(139.2406, -89.6144, 0), App.Vector(0, 0, 1), 1.1303), False)
sketch8.addGeometry(Part.Circle(App.Vector(117.7218, -89.6144, 0), App.Vector(0, 0, 1), 1.1303), False)
sketch8.addGeometry(Part.Circle(App.Vector(96.6187, -89.6144, 0), App.Vector(0, 0, 1), 1.1303), False)
sketch8.addGeometry(Part.Circle(App.Vector(96.6187, -129.5538, 0), App.Vector(0, 0, 1), 1.1303), False)
sketch8.addGeometry(Part.Circle(App.Vector(117.7218, -129.5538, 0), App.Vector(0, 0, 1), 1.1303), False)
sketch8.addGeometry(Part.Circle(App.Vector(139.2406, -129.5538, 0), App.Vector(0, 0, 1), 1.1303), False)
sketch8.addGeometry(Part.Circle(App.Vector(164, -129.5538, 0), App.Vector(0, 0, 1), 1.1303), False)
sketch8.addGeometry(Part.Circle(App.Vector(188.7594, -129.5538, 0), App.Vector(0, 0, 1), 1.1303), False)
sketch8.addGeometry(Part.Circle(App.Vector(164, -9.7356, 0), App.Vector(0, 0, 1), 1.1303), False)
sketch8.addGeometry(Part.Circle(App.Vector(139.2406, -9.7356, 0), App.Vector(0, 0, 1), 1.1303), False)
sketch8.addGeometry(Part.Circle(App.Vector(117.7218, -9.7356, 0), App.Vector(0, 0, 1), 1.1303), False)
sketch8.addGeometry(Part.Circle(App.Vector(96.6187, -9.7356, 0), App.Vector(0, 0, 1), 1.1303), False)
sketch8.addGeometry(Part.Circle(App.Vector(96.6187, 30.2038, 0), App.Vector(0, 0, 1), 1.1303), False)
sketch8.addGeometry(Part.Circle(App.Vector(117.7218, 30.2038, 0), App.Vector(0, 0, 1), 1.1303), False)
sketch8.addGeometry(Part.Circle(App.Vector(139.2406, 30.2038, 0), App.Vector(0, 0, 1), 1.1303), False)
sketch8.addGeometry(Part.Circle(App.Vector(164, 30.2038, 0), App.Vector(0, 0, 1), 1.1303), False)
sketch8.addGeometry(Part.Circle(App.Vector(188.7594, 30.2038, 0), App.Vector(0, 0, 1), 1.1303), False)
sketch8.addGeometry(Part.Circle(App.Vector(188.7594, -9.7356, 0), App.Vector(0, 0, 1), 1.1303), False)
sketch8.addConstraint(Sketcher.Constraint("Equal", 0, 1))
sketch8.addConstraint(Sketcher.Constraint("Equal", 1, 2))
sketch8.addConstraint(Sketcher.Constraint("Equal", 2, 3))
sketch8.addConstraint(Sketcher.Constraint("Equal", 3, 4))
sketch8.addConstraint(Sketcher.Constraint("Equal", 4, 5))
sketch8.addConstraint(Sketcher.Constraint("Equal", 5, 6))
sketch8.addConstraint(Sketcher.Constraint("Equal", 6, 7))
sketch8.addConstraint(Sketcher.Constraint("Equal", 7, 8))
sketch8.addConstraint(Sketcher.Constraint("Equal", 8, 9))
sketch8.addConstraint(Sketcher.Constraint("Equal", 9, 10))
sketch8.addConstraint(Sketcher.Constraint("Equal", 10, 11))
sketch8.addConstraint(Sketcher.Constraint("Equal", 11, 12))
sketch8.addConstraint(Sketcher.Constraint("Equal", 12, 13))
sketch8.addConstraint(Sketcher.Constraint("Equal", 13, 14))
sketch8.addConstraint(Sketcher.Constraint("Equal", 14, 15))
sketch8.addConstraint(Sketcher.Constraint("Equal", 15, 16))
sketch8.addConstraint(Sketcher.Constraint("Equal", 16, 17))
sketch8.addConstraint(Sketcher.Constraint("Equal", 17, 18))
sketch8.addConstraint(Sketcher.Constraint("Equal", 18, 19))
sketch8.addConstraint(Sketcher.Constraint("Equal", 19, 20))
sketch8.addConstraint(Sketcher.Constraint("Equal", 20, 21))
sketch8.addConstraint(Sketcher.Constraint("Equal", 21, 22))
sketch8.addConstraint(Sketcher.Constraint("Equal", 22, 23))
sketch8.addConstraint(Sketcher.Constraint("Horizontal", 1, 3, 4, 3))
sketch8.addConstraint(Sketcher.Constraint("Horizontal", 4, 3, 5, 3))
sketch8.addConstraint(Sketcher.Constraint("Horizontal", 5, 3, 6, 3))
sketch8.addConstraint(Sketcher.Constraint("Horizontal", 6, 3, 7, 3))
sketch8.addConstraint(Sketcher.Constraint("Horizontal", 7, 3, 8, 3))
sketch8.addConstraint(Sketcher.Constraint("Horizontal", 0, 3, 9, 3))
sketch8.addConstraint(Sketcher.Constraint("Horizontal", 9, 3, 10, 3))
sketch8.addConstraint(Sketcher.Constraint("Horizontal", 10, 3, 11, 3))
sketch8.addConstraint(Sketcher.Constraint("Horizontal", 11, 3, 12, 3))
sketch8.addConstraint(Sketcher.Constraint("Horizontal", 12, 3, 13, 3))
sketch8.addConstraint(Sketcher.Constraint("Horizontal", 2, 3, 14, 3))
sketch8.addConstraint(Sketcher.Constraint("Horizontal", 14, 3, 15, 3))
sketch8.addConstraint(Sketcher.Constraint("Horizontal", 15, 3, 16, 3))
sketch8.addConstraint(Sketcher.Constraint("Horizontal", 16, 3, 17, 3))
sketch8.addConstraint(Sketcher.Constraint("Horizontal", 3, 3, 18, 3))
sketch8.addConstraint(Sketcher.Constraint("Horizontal", 18, 3, 19, 3))
sketch8.addConstraint(Sketcher.Constraint("Horizontal", 19, 3, 20, 3))
sketch8.addConstraint(Sketcher.Constraint("Horizontal", 20, 3, 21, 3))
sketch8.addConstraint(Sketcher.Constraint("Horizontal", 21, 3, 22, 3))
sketch8.addConstraint(Sketcher.Constraint("Horizontal", 17, 3, 23, 3))
sketch8.addConstraint(Sketcher.Constraint("Vertical", 0, 3, 1, 3))
sketch8.addConstraint(Sketcher.Constraint("Vertical", 1, 3, 2, 3))
sketch8.addConstraint(Sketcher.Constraint("Vertical", 2, 3, 3, 3))
sketch8.addConstraint(Sketcher.Constraint("Vertical", 8, 3, 9, 3))
sketch8.addConstraint(Sketcher.Constraint("Vertical", 7, 3, 10, 3))
sketch8.addConstraint(Sketcher.Constraint("Vertical", 6, 3, 11, 3))
sketch8.addConstraint(Sketcher.Constraint("Vertical", 4, 3, 12, 3))
sketch8.addConstraint(Sketcher.Constraint("Vertical", 5, 3, 13, 3))
sketch8.addConstraint(Sketcher.Constraint("Vertical", 12, 3, 14, 3))
sketch8.addConstraint(Sketcher.Constraint("Vertical", 11, 3, 15, 3))
sketch8.addConstraint(Sketcher.Constraint("Vertical", 10, 3, 16, 3))
sketch8.addConstraint(Sketcher.Constraint("Vertical", 9, 3, 17, 3))
sketch8.addConstraint(Sketcher.Constraint("Vertical", 17, 3, 18, 3))
sketch8.addConstraint(Sketcher.Constraint("Vertical", 16, 3, 19, 3))
sketch8.addConstraint(Sketcher.Constraint("Vertical", 15, 3, 20, 3))
sketch8.addConstraint(Sketcher.Constraint("Vertical", 14, 3, 21, 3))
sketch8.addConstraint(Sketcher.Constraint("Vertical", 13, 3, 22, 3))
sketch8.addConstraint(Sketcher.Constraint("Vertical", 22, 3, 23, 3))
sketch8.addConstraint(Sketcher.Constraint("DistanceX", -1, 1, 4, 3, Q("164 mm")))
sketch8.addConstraint(Sketcher.Constraint("Diameter", 0, Q("2.2606 mm")))
sketch8.addConstraint(Sketcher.Constraint("DistanceX", -1, 1, 0, 3, Q("212.0969 mm")))
sketch8.addConstraint(Sketcher.Constraint("DistanceY", 0, 3, -1, 1, Q("129.5538 mm")))
sketch8.addConstraint(Sketcher.Constraint("DistanceY", 1, 3, -1, 1, Q("89.6144 mm")))
sketch8.addConstraint(Sketcher.Constraint("DistanceY", 2, 3, -1, 1, Q("9.7356 mm")))
sketch8.addConstraint(Sketcher.Constraint("DistanceY", -1, 1, 3, 3, Q("30.2038 mm")))
sketch8.addConstraint(Sketcher.Constraint("DistanceX", -1, 1, 5, 3, Q("188.7594 mm")))
sketch8.addConstraint(Sketcher.Constraint("DistanceX", -1, 1, 6, 3, Q("139.2406 mm")))
sketch8.addConstraint(Sketcher.Constraint("DistanceX", -1, 1, 7, 3, Q("117.7218 mm")))
sketch8.addConstraint(Sketcher.Constraint("DistanceX", -1, 1, 8, 3, Q("96.6187 mm")))
pocket6 = doc.addObject("PartDesign::Pocket", "Pocket005")
body.addObject(pocket6)
pocket6.Profile = sketch8
pocket6.Type = "ThroughAll"
pocket6.Midplane = True

doc.recompute()
